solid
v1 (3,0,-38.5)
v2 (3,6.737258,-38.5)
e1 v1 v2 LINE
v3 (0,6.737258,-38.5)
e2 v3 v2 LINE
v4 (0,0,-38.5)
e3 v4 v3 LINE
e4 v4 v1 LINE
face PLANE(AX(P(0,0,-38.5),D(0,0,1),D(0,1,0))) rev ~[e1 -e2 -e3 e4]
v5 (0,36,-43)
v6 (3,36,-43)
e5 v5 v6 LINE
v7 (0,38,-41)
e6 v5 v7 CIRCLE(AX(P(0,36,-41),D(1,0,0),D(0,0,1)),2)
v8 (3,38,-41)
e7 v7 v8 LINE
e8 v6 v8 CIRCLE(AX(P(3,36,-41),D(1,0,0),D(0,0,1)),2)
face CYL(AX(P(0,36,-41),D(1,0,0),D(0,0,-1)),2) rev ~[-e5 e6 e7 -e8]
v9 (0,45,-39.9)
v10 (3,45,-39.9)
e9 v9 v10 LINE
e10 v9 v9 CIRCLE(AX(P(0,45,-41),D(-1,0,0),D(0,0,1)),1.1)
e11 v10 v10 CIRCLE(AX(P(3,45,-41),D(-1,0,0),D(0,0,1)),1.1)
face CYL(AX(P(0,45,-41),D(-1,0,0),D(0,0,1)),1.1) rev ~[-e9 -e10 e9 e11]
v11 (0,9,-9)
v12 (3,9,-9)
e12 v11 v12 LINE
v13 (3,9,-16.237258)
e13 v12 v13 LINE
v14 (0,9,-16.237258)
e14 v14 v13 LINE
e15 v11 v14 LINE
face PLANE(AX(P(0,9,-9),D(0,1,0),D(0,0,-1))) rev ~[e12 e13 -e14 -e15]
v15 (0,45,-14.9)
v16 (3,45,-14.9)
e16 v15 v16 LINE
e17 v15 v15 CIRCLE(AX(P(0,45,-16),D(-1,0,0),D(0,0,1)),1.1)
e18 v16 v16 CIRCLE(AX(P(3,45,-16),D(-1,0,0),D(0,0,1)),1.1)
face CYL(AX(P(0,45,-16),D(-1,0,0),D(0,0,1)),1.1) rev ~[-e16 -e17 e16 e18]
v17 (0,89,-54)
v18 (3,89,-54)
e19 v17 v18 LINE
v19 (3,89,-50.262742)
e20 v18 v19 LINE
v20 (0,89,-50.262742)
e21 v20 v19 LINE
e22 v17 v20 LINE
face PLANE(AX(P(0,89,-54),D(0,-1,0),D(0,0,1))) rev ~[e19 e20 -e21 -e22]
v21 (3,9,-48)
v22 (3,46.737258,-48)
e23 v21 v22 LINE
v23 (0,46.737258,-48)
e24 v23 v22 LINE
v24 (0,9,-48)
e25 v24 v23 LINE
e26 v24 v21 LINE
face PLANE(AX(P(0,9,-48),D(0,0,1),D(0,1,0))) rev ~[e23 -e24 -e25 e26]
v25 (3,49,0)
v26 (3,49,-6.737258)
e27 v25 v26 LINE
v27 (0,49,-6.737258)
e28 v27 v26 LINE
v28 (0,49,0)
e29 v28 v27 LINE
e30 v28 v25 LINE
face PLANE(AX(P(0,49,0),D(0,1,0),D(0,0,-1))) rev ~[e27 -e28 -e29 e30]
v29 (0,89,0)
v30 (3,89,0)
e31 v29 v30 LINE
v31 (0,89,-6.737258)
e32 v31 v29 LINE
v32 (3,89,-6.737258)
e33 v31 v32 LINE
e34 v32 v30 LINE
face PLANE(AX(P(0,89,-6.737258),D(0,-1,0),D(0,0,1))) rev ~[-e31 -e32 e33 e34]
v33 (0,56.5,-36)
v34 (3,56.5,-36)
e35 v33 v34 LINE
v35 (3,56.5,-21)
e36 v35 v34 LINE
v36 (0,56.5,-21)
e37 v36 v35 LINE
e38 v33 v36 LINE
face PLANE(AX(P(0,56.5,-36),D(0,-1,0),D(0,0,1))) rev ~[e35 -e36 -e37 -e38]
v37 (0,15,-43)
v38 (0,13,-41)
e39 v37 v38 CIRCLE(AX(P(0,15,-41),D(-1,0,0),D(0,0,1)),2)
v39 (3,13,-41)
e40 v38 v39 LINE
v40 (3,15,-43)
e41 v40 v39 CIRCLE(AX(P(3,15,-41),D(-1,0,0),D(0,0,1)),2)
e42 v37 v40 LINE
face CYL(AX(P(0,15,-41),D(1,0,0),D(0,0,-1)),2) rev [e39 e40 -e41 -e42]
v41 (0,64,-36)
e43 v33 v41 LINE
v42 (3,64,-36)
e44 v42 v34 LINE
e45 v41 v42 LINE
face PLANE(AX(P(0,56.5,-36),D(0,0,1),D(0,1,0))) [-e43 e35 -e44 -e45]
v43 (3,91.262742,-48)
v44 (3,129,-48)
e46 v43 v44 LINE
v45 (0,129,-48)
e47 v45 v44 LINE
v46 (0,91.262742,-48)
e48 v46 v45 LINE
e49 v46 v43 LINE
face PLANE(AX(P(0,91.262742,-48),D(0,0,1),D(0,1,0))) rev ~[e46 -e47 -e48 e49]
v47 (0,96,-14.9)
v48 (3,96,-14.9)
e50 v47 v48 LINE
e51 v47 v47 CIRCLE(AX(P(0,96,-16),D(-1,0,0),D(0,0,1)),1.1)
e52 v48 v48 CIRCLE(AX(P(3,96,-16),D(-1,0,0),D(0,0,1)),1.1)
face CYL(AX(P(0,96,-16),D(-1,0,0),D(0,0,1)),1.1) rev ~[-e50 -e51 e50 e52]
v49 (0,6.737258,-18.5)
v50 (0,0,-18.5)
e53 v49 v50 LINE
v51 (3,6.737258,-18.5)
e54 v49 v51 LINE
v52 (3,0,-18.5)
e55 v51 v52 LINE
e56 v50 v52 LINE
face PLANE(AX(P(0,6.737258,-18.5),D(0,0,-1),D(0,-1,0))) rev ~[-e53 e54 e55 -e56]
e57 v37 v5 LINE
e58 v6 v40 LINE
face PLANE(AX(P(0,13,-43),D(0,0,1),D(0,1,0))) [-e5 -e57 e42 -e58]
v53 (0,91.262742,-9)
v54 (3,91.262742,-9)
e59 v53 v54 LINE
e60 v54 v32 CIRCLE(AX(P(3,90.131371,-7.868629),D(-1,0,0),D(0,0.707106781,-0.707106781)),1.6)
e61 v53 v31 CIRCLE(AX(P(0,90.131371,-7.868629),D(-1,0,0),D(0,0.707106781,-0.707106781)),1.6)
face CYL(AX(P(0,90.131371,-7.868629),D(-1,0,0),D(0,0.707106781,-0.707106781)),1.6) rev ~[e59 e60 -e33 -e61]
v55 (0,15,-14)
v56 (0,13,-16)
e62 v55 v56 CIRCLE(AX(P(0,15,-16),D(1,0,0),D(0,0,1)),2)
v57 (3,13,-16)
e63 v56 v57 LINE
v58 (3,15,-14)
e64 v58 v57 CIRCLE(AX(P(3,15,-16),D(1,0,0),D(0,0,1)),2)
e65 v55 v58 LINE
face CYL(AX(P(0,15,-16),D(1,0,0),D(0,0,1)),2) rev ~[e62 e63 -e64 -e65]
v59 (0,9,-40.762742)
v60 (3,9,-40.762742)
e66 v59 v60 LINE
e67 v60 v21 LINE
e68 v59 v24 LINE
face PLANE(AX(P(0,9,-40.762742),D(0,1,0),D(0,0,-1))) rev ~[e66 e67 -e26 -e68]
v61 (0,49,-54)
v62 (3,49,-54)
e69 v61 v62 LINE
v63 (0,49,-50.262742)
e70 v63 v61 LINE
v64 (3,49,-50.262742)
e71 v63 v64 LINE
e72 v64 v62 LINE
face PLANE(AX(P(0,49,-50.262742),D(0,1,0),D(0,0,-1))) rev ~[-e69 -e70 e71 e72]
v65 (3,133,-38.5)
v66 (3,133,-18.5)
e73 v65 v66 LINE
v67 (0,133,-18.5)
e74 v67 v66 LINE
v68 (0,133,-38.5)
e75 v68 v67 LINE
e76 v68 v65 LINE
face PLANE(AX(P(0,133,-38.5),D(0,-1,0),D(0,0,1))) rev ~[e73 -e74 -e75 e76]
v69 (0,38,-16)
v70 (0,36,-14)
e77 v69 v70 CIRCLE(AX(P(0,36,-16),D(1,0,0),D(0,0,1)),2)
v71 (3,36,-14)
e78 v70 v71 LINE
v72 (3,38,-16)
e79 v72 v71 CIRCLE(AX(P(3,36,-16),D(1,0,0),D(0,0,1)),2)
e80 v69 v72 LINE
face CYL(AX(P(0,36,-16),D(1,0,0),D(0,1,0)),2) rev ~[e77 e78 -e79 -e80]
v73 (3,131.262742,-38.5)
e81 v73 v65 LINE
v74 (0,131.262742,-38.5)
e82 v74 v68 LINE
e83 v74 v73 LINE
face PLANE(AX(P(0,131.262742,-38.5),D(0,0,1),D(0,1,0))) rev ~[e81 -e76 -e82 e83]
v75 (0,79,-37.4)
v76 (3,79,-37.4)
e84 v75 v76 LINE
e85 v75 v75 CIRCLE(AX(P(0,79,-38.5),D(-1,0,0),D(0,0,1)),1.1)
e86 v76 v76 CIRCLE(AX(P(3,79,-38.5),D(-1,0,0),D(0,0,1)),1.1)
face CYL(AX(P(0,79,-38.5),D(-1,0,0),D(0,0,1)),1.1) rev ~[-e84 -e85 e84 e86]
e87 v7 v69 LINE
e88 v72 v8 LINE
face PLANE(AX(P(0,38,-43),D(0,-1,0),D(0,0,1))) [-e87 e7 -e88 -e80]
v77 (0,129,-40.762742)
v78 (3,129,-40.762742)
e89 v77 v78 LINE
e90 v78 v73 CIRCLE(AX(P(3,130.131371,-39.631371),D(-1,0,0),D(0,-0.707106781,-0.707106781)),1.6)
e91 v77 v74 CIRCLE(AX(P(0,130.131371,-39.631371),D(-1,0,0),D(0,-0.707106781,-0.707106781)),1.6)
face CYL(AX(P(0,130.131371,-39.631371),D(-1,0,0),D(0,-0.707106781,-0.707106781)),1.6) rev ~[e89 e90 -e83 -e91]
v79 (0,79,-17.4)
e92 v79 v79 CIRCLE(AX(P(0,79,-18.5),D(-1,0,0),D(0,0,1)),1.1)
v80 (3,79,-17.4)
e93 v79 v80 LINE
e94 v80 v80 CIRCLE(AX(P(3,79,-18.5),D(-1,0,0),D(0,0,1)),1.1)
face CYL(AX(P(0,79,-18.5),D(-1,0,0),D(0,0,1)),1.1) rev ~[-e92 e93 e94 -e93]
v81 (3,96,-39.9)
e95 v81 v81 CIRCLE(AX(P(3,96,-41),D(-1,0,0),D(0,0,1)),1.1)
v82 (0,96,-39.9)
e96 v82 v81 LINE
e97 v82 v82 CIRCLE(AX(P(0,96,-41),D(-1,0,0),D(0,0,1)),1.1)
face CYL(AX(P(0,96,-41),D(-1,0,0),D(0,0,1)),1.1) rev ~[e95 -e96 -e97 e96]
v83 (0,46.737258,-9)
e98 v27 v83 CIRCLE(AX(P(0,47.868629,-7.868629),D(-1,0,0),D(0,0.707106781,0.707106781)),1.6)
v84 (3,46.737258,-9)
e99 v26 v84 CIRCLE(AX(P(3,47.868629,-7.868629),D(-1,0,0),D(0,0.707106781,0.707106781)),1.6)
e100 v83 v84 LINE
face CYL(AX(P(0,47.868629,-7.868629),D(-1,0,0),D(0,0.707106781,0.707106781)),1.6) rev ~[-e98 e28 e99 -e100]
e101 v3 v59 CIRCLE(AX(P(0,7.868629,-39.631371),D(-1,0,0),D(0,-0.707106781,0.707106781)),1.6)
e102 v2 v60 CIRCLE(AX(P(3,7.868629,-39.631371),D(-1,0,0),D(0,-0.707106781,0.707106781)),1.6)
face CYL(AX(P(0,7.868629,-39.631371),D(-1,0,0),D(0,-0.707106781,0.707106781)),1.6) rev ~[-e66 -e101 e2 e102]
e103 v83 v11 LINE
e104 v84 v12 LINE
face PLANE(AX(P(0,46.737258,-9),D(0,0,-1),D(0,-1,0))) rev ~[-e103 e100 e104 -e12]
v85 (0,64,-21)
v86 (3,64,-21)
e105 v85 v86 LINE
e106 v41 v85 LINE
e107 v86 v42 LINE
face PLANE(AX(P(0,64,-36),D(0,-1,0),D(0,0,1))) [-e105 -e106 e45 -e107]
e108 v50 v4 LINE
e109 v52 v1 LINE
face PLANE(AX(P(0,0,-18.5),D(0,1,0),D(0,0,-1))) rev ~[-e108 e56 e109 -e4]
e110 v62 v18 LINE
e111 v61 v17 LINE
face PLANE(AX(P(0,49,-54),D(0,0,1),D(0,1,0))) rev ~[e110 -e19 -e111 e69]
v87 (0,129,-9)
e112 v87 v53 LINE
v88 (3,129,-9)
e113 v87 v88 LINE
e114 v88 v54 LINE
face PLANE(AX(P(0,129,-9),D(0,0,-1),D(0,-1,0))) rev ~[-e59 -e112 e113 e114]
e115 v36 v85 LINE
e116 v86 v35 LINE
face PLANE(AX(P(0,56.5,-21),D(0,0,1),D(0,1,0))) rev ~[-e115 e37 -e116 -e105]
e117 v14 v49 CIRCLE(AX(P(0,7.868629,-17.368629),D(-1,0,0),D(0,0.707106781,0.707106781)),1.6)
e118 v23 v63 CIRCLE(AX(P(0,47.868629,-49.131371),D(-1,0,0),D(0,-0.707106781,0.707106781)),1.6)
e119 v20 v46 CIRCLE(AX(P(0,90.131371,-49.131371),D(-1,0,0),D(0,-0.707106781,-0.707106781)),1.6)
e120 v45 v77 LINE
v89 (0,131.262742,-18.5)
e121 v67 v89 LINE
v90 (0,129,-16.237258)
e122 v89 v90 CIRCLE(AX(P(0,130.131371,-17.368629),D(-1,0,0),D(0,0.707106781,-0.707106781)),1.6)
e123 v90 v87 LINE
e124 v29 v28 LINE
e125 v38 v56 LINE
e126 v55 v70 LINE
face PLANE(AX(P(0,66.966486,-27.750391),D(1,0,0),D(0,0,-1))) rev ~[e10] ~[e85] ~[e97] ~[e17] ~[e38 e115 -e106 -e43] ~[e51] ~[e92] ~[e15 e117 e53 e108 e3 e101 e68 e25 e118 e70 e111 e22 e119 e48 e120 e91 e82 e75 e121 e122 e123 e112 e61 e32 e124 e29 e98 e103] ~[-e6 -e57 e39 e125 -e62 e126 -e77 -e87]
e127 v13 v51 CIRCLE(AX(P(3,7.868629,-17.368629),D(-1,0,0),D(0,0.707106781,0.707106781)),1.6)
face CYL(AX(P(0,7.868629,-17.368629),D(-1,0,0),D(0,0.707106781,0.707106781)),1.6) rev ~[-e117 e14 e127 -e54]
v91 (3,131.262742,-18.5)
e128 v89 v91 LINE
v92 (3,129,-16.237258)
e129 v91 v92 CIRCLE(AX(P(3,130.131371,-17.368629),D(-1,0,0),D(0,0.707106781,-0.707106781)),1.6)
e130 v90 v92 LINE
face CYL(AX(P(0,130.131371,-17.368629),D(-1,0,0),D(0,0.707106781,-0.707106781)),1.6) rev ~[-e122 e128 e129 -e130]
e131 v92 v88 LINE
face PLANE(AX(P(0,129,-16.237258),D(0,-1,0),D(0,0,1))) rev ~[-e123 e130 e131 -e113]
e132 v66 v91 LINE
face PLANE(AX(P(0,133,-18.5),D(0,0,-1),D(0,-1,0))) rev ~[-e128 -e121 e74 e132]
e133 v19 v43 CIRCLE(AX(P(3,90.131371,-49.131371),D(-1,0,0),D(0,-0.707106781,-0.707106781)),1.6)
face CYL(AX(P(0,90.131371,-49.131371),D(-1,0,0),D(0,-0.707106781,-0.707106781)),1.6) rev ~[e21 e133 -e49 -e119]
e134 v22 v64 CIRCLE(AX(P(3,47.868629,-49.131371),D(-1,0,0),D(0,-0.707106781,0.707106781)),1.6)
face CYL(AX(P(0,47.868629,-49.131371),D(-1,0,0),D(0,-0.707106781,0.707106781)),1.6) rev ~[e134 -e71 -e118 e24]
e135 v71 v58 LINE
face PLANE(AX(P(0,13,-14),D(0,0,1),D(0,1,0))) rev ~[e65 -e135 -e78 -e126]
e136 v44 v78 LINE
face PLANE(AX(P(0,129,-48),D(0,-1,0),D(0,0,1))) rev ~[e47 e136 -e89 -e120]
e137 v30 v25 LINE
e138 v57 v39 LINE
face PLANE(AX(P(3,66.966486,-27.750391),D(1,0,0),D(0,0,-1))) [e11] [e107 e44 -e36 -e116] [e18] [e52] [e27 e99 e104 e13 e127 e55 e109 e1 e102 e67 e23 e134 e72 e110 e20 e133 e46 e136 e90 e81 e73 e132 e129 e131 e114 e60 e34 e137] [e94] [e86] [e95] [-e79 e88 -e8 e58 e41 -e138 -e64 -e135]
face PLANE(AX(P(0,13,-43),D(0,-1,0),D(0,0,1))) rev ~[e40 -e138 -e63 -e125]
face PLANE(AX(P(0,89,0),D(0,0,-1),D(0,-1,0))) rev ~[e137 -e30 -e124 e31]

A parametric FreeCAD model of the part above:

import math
import FreeCAD as App
import Part
import Sketcher

V = App.Vector


def edges_at(feature, points):
    """Names of the edges that pass closest to the given points."""
    edges = feature.Shape.Edges
    near = lambda p: min(range(len(edges)), key=lambda i: edges[i].distToShape(Part.Vertex(*p))[0])
    return sorted({f"Edge{near(p) + 1}" for p in points})


def add_polygon(sketch, points):
    """Adds a closed chain of lines whose ends are joined by coincident constraints."""
    first, n = sketch.GeometryCount, len(points)
    for a, b in zip(points, points[1:] + points[:1]):
        sketch.addGeometry(Part.LineSegment(App.Vector(*a, 0), App.Vector(*b, 0)), False)
    for i in range(n):
        sketch.addConstraint(Sketcher.Constraint("Coincident", first + i, 2, first + (i + 1) % n, 1))

doc = App.newDocument("Part")
body = doc.addObject("PartDesign::Body", "Body")

# Sketch on YZ plane
sketch1 = body.newObject("Sketcher::SketchObject", "Sketch")
sketch1.AttachmentSupport = (doc.getObject("YZ_Plane"), [""])
sketch1.MapMode = "FlatFace"
sketch1.addGeometry([
    Part.LineSegment(V(6.7, -18.5, 0), V(0, -18.5, 0)),  # 0
    Part.LineSegment(V(0, -18.5, 0), V(0, -38.5, 0)),  # 1
    Part.LineSegment(V(0, -38.5, 0), V(6.7, -38.5, 0)),  # 2
    Part.ArcOfCircle(Part.Circle(V(7.9, -39.6, 0), V(0, 0, 1), 1.6), math.radians(-45), math.radians(135)),  # 3
    Part.LineSegment(V(9, -40.8, 0), V(9, -48, 0)),  # 4
    Part.LineSegment(V(9, -48, 0), V(46.7, -48, 0)),  # 5
    Part.ArcOfCircle(Part.Circle(V(47.9, -49.1, 0), V(0, 0, 1), 1.6), math.radians(-45), math.radians(135)),  # 6
    Part.LineSegment(V(49, -50.3, 0), V(49, -54, 0)),  # 7
    Part.LineSegment(V(49, -54, 0), V(89, -54, 0)),  # 8
    Part.LineSegment(V(89, -54, 0), V(89, -50.3, 0)),  # 9
    Part.ArcOfCircle(Part.Circle(V(90.1, -49.1, 0), V(0, 0, 1), 1.6), math.radians(45), math.radians(225)),  # 10
    Part.LineSegment(V(91.3, -48, 0), V(129, -48, 0)),  # 11
    Part.LineSegment(V(129, -48, 0), V(129, -40.8, 0)),  # 12
    Part.ArcOfCircle(Part.Circle(V(130.1, -39.6, 0), V(0, 0, 1), 1.6), math.radians(45), math.radians(225)),  # 13
    Part.LineSegment(V(131.3, -38.5, 0), V(133, -38.5, 0)),  # 14
    Part.LineSegment(V(133, -38.5, 0), V(133, -18.5, 0)),  # 15
    Part.LineSegment(V(133, -18.5, 0), V(131.3, -18.5, 0)),  # 16
    Part.ArcOfCircle(Part.Circle(V(130.1, -17.4, 0), V(0, 0, 1), 1.6), math.radians(135), math.radians(315)),  # 17
    Part.LineSegment(V(129, -16.2, 0), V(129, -9, 0)),  # 18
    Part.LineSegment(V(129, -9, 0), V(91.3, -9, 0)),  # 19
    Part.ArcOfCircle(Part.Circle(V(90.1, -7.9, 0), V(0, 0, 1), 1.6), math.radians(135), math.radians(315)),  # 20
    Part.LineSegment(V(89, -6.7, 0), V(89, 0, 0)),  # 21
    Part.LineSegment(V(89, 0, 0), V(49, 0, 0)),  # 22
    Part.LineSegment(V(49, 0, 0), V(49, -6.7, 0)),  # 23
    Part.ArcOfCircle(Part.Circle(V(47.9, -7.9, 0), V(0, 0, 1), 1.6), math.radians(-135), math.radians(45)),  # 24
    Part.LineSegment(V(46.7, -9, 0), V(9, -9, 0)),  # 25
    Part.LineSegment(V(9, -9, 0), V(9, -16.2, 0)),  # 26
    Part.ArcOfCircle(Part.Circle(V(7.9, -17.4, 0), V(0, 0, 1), 1.6), math.radians(-135), math.radians(45)),  # 27
], False)
sketch1.addConstraint([
    Sketcher.Constraint("Coincident", 0, 2, 1, 1),
    Sketcher.Constraint("Coincident", 1, 2, 2, 1),
    Sketcher.Constraint("Coincident", 2, 2, 3, 2),
    Sketcher.Constraint("Coincident", 3, 1, 4, 1),
    Sketcher.Constraint("Coincident", 4, 2, 5, 1),
    Sketcher.Constraint("Coincident", 5, 2, 6, 2),
    Sketcher.Constraint("Coincident", 6, 1, 7, 1),
    Sketcher.Constraint("Coincident", 7, 2, 8, 1),
    Sketcher.Constraint("Coincident", 8, 2, 9, 1),
    Sketcher.Constraint("Coincident", 9, 2, 10, 2),
    Sketcher.Constraint("Coincident", 10, 1, 11, 1),
    Sketcher.Constraint("Coincident", 11, 2, 12, 1),
    Sketcher.Constraint("Coincident", 12, 2, 13, 2),
    Sketcher.Constraint("Coincident", 13, 1, 14, 1),
    Sketcher.Constraint("Coincident", 14, 2, 15, 1),
    Sketcher.Constraint("Coincident", 15, 2, 16, 1),
    Sketcher.Constraint("Coincident", 16, 2, 17, 2),
    Sketcher.Constraint("Coincident", 17, 1, 18, 1),
    Sketcher.Constraint("Coincident", 18, 2, 19, 1),
    Sketcher.Constraint("Coincident", 19, 2, 20, 2),
    Sketcher.Constraint("Coincident", 20, 1, 21, 1),
    Sketcher.Constraint("Coincident", 21, 2, 22, 1),
    Sketcher.Constraint("Coincident", 22, 2, 23, 1),
    Sketcher.Constraint("Coincident", 23, 2, 24, 2),
    Sketcher.Constraint("Coincident", 24, 1, 25, 1),
    Sketcher.Constraint("Coincident", 25, 2, 26, 1),
    Sketcher.Constraint("Coincident", 26, 2, 27, 2),
    Sketcher.Constraint("Coincident", 27, 1, 0, 1),
    Sketcher.Constraint("Horizontal", 0),
    Sketcher.Constraint("Vertical", 1),
    Sketcher.Constraint("Horizontal", 2),
    Sketcher.Constraint("Vertical", 4),
    Sketcher.Constraint("Horizontal", 5),
    Sketcher.Constraint("Vertical", 7),
    Sketcher.Constraint("Horizontal", 8),
    Sketcher.Constraint("Vertical", 9),
    Sketcher.Constraint("Horizontal", 11),
    Sketcher.Constraint("Vertical", 12),
    Sketcher.Constraint("Horizontal", 14),
    Sketcher.Constraint("Vertical", 15),
    Sketcher.Constraint("Horizontal", 16),
    Sketcher.Constraint("Vertical", 18),
    Sketcher.Constraint("Horizontal", 19),
    Sketcher.Constraint("Vertical", 21),
    Sketcher.Constraint("Horizontal", 22),
    Sketcher.Constraint("Vertical", 23),
    Sketcher.Constraint("Horizontal", 25),
    Sketcher.Constraint("Vertical", 26),
    Sketcher.Constraint("Equal", 3, 6),
    Sketcher.Constraint("Equal", 6, 10),
    Sketcher.Constraint("Equal", 10, 13),
    Sketcher.Constraint("Equal", 13, 17),
    Sketcher.Constraint("Equal", 17, 20),
    Sketcher.Constraint("Equal", 20, 24),
    Sketcher.Constraint("Equal", 24, 27),
    Sketcher.Constraint("PointOnObject", 0, 2, -2),
    Sketcher.Constraint("PointOnObject", 21, 2, -1),
    Sketcher.Constraint("Horizontal", 6, 3, 10, 3),
    Sketcher.Constraint("Horizontal", 3, 3, 13, 3),
    Sketcher.Constraint("Horizontal", 20, 3, 24, 3),
    Sketcher.Constraint("Horizontal", 17, 3, 27, 3),
    Sketcher.Constraint("Horizontal", 6, 1, 9, 2),
    Sketcher.Constraint("Horizontal", 5, 2, 10, 1),
    Sketcher.Constraint("Horizontal", 3, 1, 12, 2),
    Sketcher.Constraint("Horizontal", 2, 2, 13, 1),
    Sketcher.Constraint("Horizontal", 0, 2, 15, 2),
    Sketcher.Constraint("Horizontal", 20, 1, 23, 2),
    Sketcher.Constraint("Horizontal", 19, 2, 24, 1),
    Sketcher.Constraint("Horizontal", 17, 1, 26, 2),
    Sketcher.Constraint("Vertical", 13, 3, 17, 3),
    Sketcher.Constraint("Vertical", 10, 3, 20, 3),
    Sketcher.Constraint("Vertical", 6, 3, 24, 3),
    Sketcher.Constraint("Vertical", 3, 3, 27, 3),
    Sketcher.Constraint("Vertical", 13, 1, 16, 2),
    Sketcher.Constraint("Vertical", 12, 2, 17, 1),
    Sketcher.Constraint("Vertical", 10, 1, 19, 2),
    Sketcher.Constraint("Vertical", 9, 2, 20, 1),
    Sketcher.Constraint("Equal", 5, 11),
    Sketcher.Constraint("Equal", 12, 18),
    Sketcher.Constraint("Equal", 2, 21),
    Sketcher.Constraint("Radius", 3, 1.6),
    Sketcher.Constraint("DistanceX", 8, 1, 8, 2, 40.0),
    Sketcher.Constraint("DistanceY", 1, 2, 1, 1, 20.0),
    Sketcher.Constraint("DistanceX", -1, 1, 3, 1, 9.0),
    Sketcher.Constraint("DistanceY", 4, 2, -1, 1, 48.0),
    Sketcher.Constraint("DistanceX", -1, 1, 6, 1, 49.0),
    Sketcher.Constraint("DistanceY", 7, 2, -1, 1, 54.0),
    Sketcher.Constraint("DistanceX", -1, 1, 14, 2, 133.0),
    Sketcher.Constraint("DistanceY", 18, 2, -1, 1, 9.0),
    Sketcher.Constraint("DistanceX", 3, 3, 6, 3, 40.0),
    Sketcher.Constraint("DistanceX", 10, 1, 13, 1, 40.0),
    Sketcher.Constraint("DistanceX", -1, 1, 3, 3, 7.868629),
])
pad1 = body.newObject("PartDesign::Pad", "Pad")
pad1.Profile = sketch1
pad1.Length = 3

# Sketch on YZ plane
sketch2 = body.newObject("Sketcher::SketchObject", "Sketch001")
sketch2.AttachmentSupport = (doc.getObject("YZ_Plane"), [""])
sketch2.MapMode = "FlatFace"
sketch2.addGeometry(Part.Circle(V(79, -38.5, 0), V(0, 0, 1), 1.1), False)  # 0
sketch2.addGeometry(Part.Circle(V(79, -18.5, 0), V(0, 0, 1), 1.1), False)  # 1
add_polygon(sketch2, [(38, -43), (13, -43), (13, -14), (38, -14)])  # lines 2-5
sketch2.addConstraint([
    Sketcher.Constraint("Horizontal", 2),
    Sketcher.Constraint("Vertical", 3),
    Sketcher.Constraint("Horizontal", 4),
    Sketcher.Constraint("Vertical", 5),
    Sketcher.Constraint("Equal", 0, 1),
    Sketcher.Constraint("Vertical", 0, 3, 1, 3),
    Sketcher.Constraint("Diameter", 0, 2.2),
    Sketcher.Constraint("DistanceX", 2, 2, 2, 1, 25.0),
    Sketcher.Constraint("DistanceY", 3, 1, 3, 2, 29.0),
    Sketcher.Constraint("DistanceX", -1, 1, 0, 3, 79.0),
    Sketcher.Constraint("DistanceX", -1, 1, 2, 2, 13.0),
    Sketcher.Constraint("DistanceY", 2, 2, -1, 1, 43.0),
    Sketcher.Constraint("DistanceY", 0, 3, 1, 3, 20.0),
    Sketcher.Constraint("DistanceY", 0, 3, -1, 1, 38.5),
])
pocket1 = body.newObject("PartDesign::Pocket", "Pocket")
pocket1.Profile = sketch2
pocket1.Type = "ThroughAll"
pocket1.Reversed = True
doc.recompute()

fillet = body.newObject("PartDesign::Fillet", "Fillet")
fillet.Base = (pocket1, edges_at(pocket1, [
    (1.5, 38, -14),
    (1.5, 13, -14),
    (1.5, 13, -43),
    (1.5, 38, -43),
]))
fillet.Radius = 2

# Sketch on YZ plane
sketch3 = body.newObject("Sketcher::SketchObject", "Sketch002")
sketch3.AttachmentSupport = (doc.getObject("YZ_Plane"), [""])
sketch3.MapMode = "FlatFace"
add_polygon(sketch3, [(64, -36), (56, -36), (56, -21), (64, -21)])  # lines 0-3
sketch3.addConstraint([
    Sketcher.Constraint("Horizontal", 0),
    Sketcher.Constraint("Vertical", 1),
    Sketcher.Constraint("Horizontal", 2),
    Sketcher.Constraint("Vertical", 3),
    Sketcher.Constraint("DistanceY", 1, 1, 1, 2, 15.0),
    Sketcher.Constraint("DistanceX", 0, 2, 0, 1, 7.5),
    Sketcher.Constraint("DistanceY", 0, 2, -1, 1, 36.0),
    Sketcher.Constraint("DistanceX", -1, 1, 2, 2, 64.0),
])
pocket2 = body.newObject("PartDesign::Pocket", "Pocket001")
pocket2.Profile = sketch3
pocket2.Type = "ThroughAll"
pocket2.Reversed = True

# Sketch on YZ plane
sketch4 = body.newObject("Sketcher::SketchObject", "Sketch003")
sketch4.AttachmentSupport = (doc.getObject("YZ_Plane"), [""])
sketch4.MapMode = "FlatFace"
sketch4.addGeometry([
    Part.Circle(V(96, -41, 0), V(0, 0, 1), 1.1),
    Part.Circle(V(96, -16, 0), V(0, 0, 1), 1.1),
    Part.Circle(V(45, -41, 0), V(0, 0, 1), 1.1),
    Part.Circle(V(45, -16, 0), V(0, 0, 1), 1.1),
], False)
sketch4.addConstraint([
    Sketcher.Constraint("Equal", 0, 1),
    Sketcher.Constraint("Equal", 1, 2),
    Sketcher.Constraint("Equal", 2, 3),
    Sketcher.Constraint("Horizontal", 0, 3, 2, 3),
    Sketcher.Constraint("Horizontal", 1, 3, 3, 3),
    Sketcher.Constraint("Vertical", 0, 3, 1, 3),
    Sketcher.Constraint("Vertical", 2, 3, 3, 3),
    Sketcher.Constraint("Diameter", 0, 2.2),
    Sketcher.Constraint("DistanceX", -1, 1, 0, 3, 96.0),
    Sketcher.Constraint("DistanceY", 0, 3, -1, 1, 41.0),
    Sketcher.Constraint("DistanceY", 1, 3, -1, 1, 16.0),
    Sketcher.Constraint("DistanceX", -1, 1, 2, 3, 45.0),
])
pocket3 = body.newObject("PartDesign::Pocket", "Pocket002")
pocket3.Profile = sketch4
pocket3.Type = "ThroughAll"
pocket3.Reversed = True

doc.recompute()
